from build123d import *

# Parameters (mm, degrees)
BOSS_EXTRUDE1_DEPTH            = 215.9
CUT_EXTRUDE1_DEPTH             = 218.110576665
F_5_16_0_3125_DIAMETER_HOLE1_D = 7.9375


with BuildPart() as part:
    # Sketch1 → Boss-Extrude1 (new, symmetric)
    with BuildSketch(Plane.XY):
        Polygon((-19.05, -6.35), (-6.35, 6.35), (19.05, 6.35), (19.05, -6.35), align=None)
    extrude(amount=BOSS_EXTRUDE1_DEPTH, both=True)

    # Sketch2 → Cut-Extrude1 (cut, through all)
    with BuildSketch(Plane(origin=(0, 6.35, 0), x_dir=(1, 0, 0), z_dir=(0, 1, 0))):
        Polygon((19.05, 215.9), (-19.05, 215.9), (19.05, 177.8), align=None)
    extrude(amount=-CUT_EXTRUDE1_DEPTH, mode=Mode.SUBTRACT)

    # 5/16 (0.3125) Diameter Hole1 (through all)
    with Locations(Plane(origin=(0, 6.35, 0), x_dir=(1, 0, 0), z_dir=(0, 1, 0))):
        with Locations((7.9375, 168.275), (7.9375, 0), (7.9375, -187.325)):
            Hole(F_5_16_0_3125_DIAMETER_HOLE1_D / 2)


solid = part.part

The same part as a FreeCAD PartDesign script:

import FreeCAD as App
import Part
import Sketcher
from FreeCAD import Vector
Q = App.Units.Quantity


def add_polygon(sketch, points):
    """Adds a closed chain of lines whose ends are joined by coincident constraints."""
    first, n = sketch.GeometryCount, len(points)
    for a, b in zip(points, points[1:] + points[:1]):
        sketch.addGeometry(Part.LineSegment(App.Vector(*a, 0), App.Vector(*b, 0)), False)
    for i in range(n):
        sketch.addConstraint(Sketcher.Constraint("Coincident", first + i, 2, first + (i + 1) % n, 1))

doc = App.newDocument("Part")
body = doc.addObject("PartDesign::Body", "Body")

# Sketch on XY plane
sketch1 = doc.addObject("Sketcher::SketchObject", "Sketch")
body.addObject(sketch1)
sketch1.AttachmentSupport = (doc.XY_Plane, [""])
sketch1.MapMode = "FlatFace"
add_polygon(sketch1, [(-6.35, 6.35), (-19.05, -6.35), (19.05, -6.35), (19.05, 6.35)])  # lines 0-3
sketch1.addConstraint([
    Sketcher.Constraint("Horizontal", 1),
    Sketcher.Constraint("Vertical", 2),
    Sketcher.Constraint("Horizontal", 3),
    Sketcher.Constraint("Symmetric", 0, 2, 2, 2, -1, 1),
    Sketcher.Constraint("DistanceX", 3, 2, 3, 1, Q("1 in")),
    Sketcher.Constraint("DistanceX", 1, 1, 1, 2, Q("1.5 in")),
    Sketcher.Constraint("DistanceY", 2, 1, 2, 2, Q("0.5 in")),
])
pad1 = doc.addObject("PartDesign::Pad", "Pad")
body.addObject(pad1)
pad1.Profile = sketch1
pad1.Length = Q("17 in")
pad1.Midplane = True

# Sketch on XZ plane
sketch2 = doc.addObject("Sketcher::SketchObject", "Sketch001")
body.addObject(sketch2)
sketch2.AttachmentSupport = (doc.XZ_Plane, [""])
sketch2.MapMode = "FlatFace"
sketch2.AttachmentOffset = App.Placement(Vector(0, 0, -0.25 * 25.4), App.Rotation())
add_polygon(sketch2, [(19.05, -215.9), (-19.05, -215.9), (19.05, -177.8)])  # lines 0-2
sketch2.addConstraint([
    Sketcher.Constraint("Horizontal", 0),
    Sketcher.Constraint("Vertical", 2),
    Sketcher.Constraint("Equal", 0, 2),
    Sketcher.Constraint("DistanceX", 0, 2, 0, 1, Q("1.5 in")),
    Sketcher.Constraint("DistanceY", 1, 2, -1, 1, Q("7 in")),
    Sketcher.Constraint("DistanceX", 0, 2, -1, 1, Q("0.75 in")),
])
pocket1 = doc.addObject("PartDesign::Pocket", "Pocket")
body.addObject(pocket1)
pocket1.Profile = sketch2
pocket1.Type = "ThroughAll"
pocket1.Reversed = True

# Sketch on XZ plane
sketch3 = doc.addObject("Sketcher::SketchObject", "Sketch002")
body.addObject(sketch3)
sketch3.AttachmentSupport = (doc.XZ_Plane, [""])
sketch3.MapMode = "FlatFace"
sketch3.AttachmentOffset = App.Placement(Vector(0, 0, -0.25 * 25.4), App.Rotation())
sketch3.addGeometry([
    Part.Circle(Vector(7.9375, -168.275, 0), Vector(0, 0, 1), 3.96875),
    Part.Circle(Vector(7.9375, 0, 0), Vector(0, 0, 1), 3.96875),
    Part.Circle(Vector(7.9375, 187.325, 0), Vector(0, 0, 1), 3.96875),
], False)
sketch3.addConstraint([
    Sketcher.Constraint("Equal", 0, 1),
    Sketcher.Constraint("Equal", 1, 2),
    Sketcher.Constraint("PointOnObject", 1, 3, -1),
    Sketcher.Constraint("Vertical", 0, 3, 1, 3),
    Sketcher.Constraint("Vertical", 1, 3, 2, 3),
    Sketcher.Constraint("Diameter", 0, Q("0.3125 in")),
    Sketcher.Constraint("DistanceY", 0, 3, 2, 3, Q("14 in")),
    Sketcher.Constraint("DistanceX", -1, 1, 0, 3, Q("0.3125 in")),
    Sketcher.Constraint("DistanceY", 0, 3, -1, 1, Q("6.625 in")),
])
doc.recompute()
hole = doc.addObject("PartDesign::Hole", "Hole")
body.addObject(hole)
hole.Profile = sketch3
hole.ThreadType = "None"
hole.Diameter = Q("0.3125 in")
hole.DepthType = "ThroughAll"
hole.Reversed = True

doc.recompute()
